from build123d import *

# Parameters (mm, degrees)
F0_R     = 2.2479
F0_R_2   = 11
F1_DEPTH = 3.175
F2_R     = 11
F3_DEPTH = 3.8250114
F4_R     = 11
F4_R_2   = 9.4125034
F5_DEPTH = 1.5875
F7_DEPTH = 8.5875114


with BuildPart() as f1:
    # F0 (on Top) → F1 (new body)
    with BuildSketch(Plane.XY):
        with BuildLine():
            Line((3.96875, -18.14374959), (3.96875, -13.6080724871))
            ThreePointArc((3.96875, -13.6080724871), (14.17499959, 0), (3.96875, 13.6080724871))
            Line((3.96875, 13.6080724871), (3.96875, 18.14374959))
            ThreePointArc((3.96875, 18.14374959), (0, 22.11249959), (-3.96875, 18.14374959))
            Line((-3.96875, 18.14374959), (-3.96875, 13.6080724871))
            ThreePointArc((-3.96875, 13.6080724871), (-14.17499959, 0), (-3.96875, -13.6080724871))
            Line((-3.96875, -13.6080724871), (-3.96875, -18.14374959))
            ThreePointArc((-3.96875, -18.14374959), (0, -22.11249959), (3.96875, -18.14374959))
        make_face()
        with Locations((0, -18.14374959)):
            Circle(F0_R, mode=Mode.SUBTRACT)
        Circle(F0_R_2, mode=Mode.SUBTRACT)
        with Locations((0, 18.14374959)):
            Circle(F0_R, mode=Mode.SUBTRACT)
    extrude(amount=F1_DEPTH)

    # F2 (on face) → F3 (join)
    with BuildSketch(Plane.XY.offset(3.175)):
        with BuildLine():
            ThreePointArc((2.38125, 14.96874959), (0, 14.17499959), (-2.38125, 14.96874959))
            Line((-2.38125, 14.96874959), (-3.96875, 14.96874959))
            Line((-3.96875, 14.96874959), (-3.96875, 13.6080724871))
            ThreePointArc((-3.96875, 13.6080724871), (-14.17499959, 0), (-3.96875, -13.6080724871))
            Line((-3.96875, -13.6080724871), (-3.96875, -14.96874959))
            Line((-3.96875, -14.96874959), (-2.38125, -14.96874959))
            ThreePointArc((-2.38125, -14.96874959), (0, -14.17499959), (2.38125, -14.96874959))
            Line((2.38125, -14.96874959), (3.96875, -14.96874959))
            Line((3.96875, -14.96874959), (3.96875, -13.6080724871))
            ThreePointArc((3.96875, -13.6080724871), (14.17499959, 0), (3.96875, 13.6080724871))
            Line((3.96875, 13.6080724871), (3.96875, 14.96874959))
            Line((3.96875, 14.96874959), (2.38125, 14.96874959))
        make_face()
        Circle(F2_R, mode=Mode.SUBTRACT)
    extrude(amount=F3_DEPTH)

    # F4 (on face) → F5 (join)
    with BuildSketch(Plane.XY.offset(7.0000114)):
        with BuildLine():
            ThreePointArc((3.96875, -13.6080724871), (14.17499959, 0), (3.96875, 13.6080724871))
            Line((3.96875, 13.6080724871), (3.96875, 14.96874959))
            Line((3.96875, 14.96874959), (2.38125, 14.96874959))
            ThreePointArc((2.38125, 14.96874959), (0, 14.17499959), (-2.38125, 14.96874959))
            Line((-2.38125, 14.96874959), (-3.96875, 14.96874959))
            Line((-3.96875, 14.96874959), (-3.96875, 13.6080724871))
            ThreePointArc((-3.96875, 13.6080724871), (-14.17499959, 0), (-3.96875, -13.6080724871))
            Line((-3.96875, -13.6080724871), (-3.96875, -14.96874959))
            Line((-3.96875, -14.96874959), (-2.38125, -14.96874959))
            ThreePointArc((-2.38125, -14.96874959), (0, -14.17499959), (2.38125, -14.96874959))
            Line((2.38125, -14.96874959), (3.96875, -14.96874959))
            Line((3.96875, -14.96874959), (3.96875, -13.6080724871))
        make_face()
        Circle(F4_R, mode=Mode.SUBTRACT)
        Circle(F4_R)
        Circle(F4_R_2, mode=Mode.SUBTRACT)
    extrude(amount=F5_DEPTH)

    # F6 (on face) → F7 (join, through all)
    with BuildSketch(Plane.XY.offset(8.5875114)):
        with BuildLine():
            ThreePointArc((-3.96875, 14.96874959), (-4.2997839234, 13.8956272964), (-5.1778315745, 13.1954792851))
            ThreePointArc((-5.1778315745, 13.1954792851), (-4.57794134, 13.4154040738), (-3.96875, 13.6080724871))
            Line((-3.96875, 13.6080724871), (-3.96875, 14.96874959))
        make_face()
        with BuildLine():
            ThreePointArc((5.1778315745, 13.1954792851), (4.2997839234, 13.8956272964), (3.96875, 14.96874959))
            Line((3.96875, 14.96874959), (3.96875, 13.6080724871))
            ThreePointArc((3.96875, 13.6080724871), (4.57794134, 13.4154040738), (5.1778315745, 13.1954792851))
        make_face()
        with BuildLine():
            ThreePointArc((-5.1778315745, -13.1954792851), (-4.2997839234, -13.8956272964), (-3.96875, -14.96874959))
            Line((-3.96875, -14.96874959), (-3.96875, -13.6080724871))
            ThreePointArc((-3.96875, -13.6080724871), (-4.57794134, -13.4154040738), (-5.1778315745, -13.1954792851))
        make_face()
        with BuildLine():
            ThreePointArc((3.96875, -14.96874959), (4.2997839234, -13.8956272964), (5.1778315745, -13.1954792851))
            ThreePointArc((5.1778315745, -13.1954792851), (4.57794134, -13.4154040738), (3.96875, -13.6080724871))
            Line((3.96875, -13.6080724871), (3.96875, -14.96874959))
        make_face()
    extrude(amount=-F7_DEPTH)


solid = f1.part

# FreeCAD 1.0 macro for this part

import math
import FreeCAD as App
import Part
import Sketcher

V = App.Vector
Q = App.Units.Quantity

doc = App.newDocument("Part")
body = doc.addObject("PartDesign::Body", "Body")

# Sketch on XY plane
sketch1 = body.newObject("Sketcher::SketchObject", "Sketch")
sketch1.AttachmentSupport = (doc.getObject("XY_Plane"), [""])
sketch1.MapMode = "FlatFace"
sketch1.addGeometry([
    Part.LineSegment(V(3.96875, -18.14375, 0), V(3.96875, -13.608072, 0)),  # 0
    Part.ArcOfCircle(Part.Circle(V(0, 0, 0), V(0, 0, 1), 14.175), math.radians(-73.740847), math.radians(73.740847)),  # 1
    Part.LineSegment(V(3.96875, 13.608072, 0), V(3.96875, 18.14375, 0)),  # 2
    Part.ArcOfCircle(Part.Circle(V(0, 18.14375, 0), V(0, 0, 1), 3.96875), math.radians(0), math.radians(180)),  # 3
    Part.LineSegment(V(-3.96875, 18.14375, 0), V(-3.96875, 13.608072, 0)),  # 4
    Part.ArcOfCircle(Part.Circle(V(0, 0, 0), V(0, 0, 1), 14.175), math.radians(106.259153), math.radians(253.740847)),  # 5
    Part.LineSegment(V(-3.96875, -13.608072, 0), V(-3.96875, -18.14375, 0)),  # 6
    Part.ArcOfCircle(Part.Circle(V(0, -18.14375, 0), V(0, 0, 1), 3.96875), math.radians(180), math.radians(360)),  # 7
    Part.Circle(V(0, -18.14375, 0), V(0, 0, 1), 2.2479),  # 8
    Part.Circle(V(0, 0, 0), V(0, 0, 1), 11),  # 9
    Part.Circle(V(0, 18.14375, 0), V(0, 0, 1), 2.2479),  # 10
], False)
sketch1.addConstraint([
    Sketcher.Constraint("Coincident", 0, 2, 1, 1),
    Sketcher.Constraint("Coincident", 1, 2, 2, 1),
    Sketcher.Constraint("Tangent", 2, 2, 3, 1),
    Sketcher.Constraint("Tangent", 3, 2, 4, 1),
    Sketcher.Constraint("Coincident", 4, 2, 5, 1),
    Sketcher.Constraint("Coincident", 5, 2, 6, 1),
    Sketcher.Constraint("Tangent", 6, 2, 7, 1),
    Sketcher.Constraint("Tangent", 7, 2, 0, 1),
    Sketcher.Constraint("Vertical", 0),
    Sketcher.Constraint("Vertical", 2),
    Sketcher.Constraint("Vertical", 4),
    Sketcher.Constraint("Vertical", 6),
    Sketcher.Constraint("Coincident", 1, 3, -1, 1),
    Sketcher.Constraint("Coincident", 5, 3, -1, 1),
    Sketcher.Constraint("Coincident", 9, 3, -1, 1),
    Sketcher.Constraint("Coincident", 8, 3, 7, 3),
    Sketcher.Constraint("Coincident", 10, 3, 3, 3),
    Sketcher.Constraint("Equal", 1, 5),
    Sketcher.Constraint("Equal", 3, 7),
    Sketcher.Constraint("Equal", 8, 10),
    Sketcher.Constraint("Symmetric", 3, 3, 7, 3, -1, 1),
    Sketcher.Constraint("PointOnObject", 3, 3, -2),
    Sketcher.Constraint("Diameter", 8, Q("0.177 in")),
    Sketcher.Constraint("Radius", 3, Q("0.15625 in")),
    Sketcher.Constraint("Diameter", 9, Q("22 mm")),
    Sketcher.Constraint("Radius", 1, Q("14.175 mm")),
    Sketcher.Constraint("DistanceY", 7, 3, 3, 3, Q("36.287499 mm")),
])
pad1 = body.newObject("PartDesign::Pad", "Pad")
pad1.Profile = sketch1
pad1.Length = Q("0.125 in")

# Sketch on XY plane
sketch2 = body.newObject("Sketcher::SketchObject", "Sketch001")
sketch2.AttachmentSupport = (doc.getObject("XY_Plane"), [""])
sketch2.MapMode = "FlatFace"
sketch2.AttachmentOffset = App.Placement(V(0, 0, 0.125 * 25.4), App.Rotation())
sketch2.addGeometry([
    Part.ArcOfCircle(Part.Circle(V(0, 18.14375, 0), V(0, 0, 1), 3.96875), math.radians(-126.869898), math.radians(-53.130102)),  # 0
    Part.LineSegment(V(-2.38125, 14.96875, 0), V(-3.96875, 14.96875, 0)),  # 1
    Part.LineSegment(V(-3.96875, 14.96875, 0), V(-3.96875, 13.608072, 0)),  # 2
    Part.ArcOfCircle(Part.Circle(V(0, 0, 0), V(0, 0, 1), 14.175), math.radians(106.259153), math.radians(253.740847)),  # 3
    Part.LineSegment(V(-3.96875, -13.608072, 0), V(-3.96875, -14.96875, 0)),  # 4
    Part.LineSegment(V(-3.96875, -14.96875, 0), V(-2.38125, -14.96875, 0)),  # 5
    Part.ArcOfCircle(Part.Circle(V(0, -18.14375, 0), V(0, 0, 1), 3.96875), math.radians(53.130102), math.radians(126.869898)),  # 6
    Part.LineSegment(V(2.38125, -14.96875, 0), V(3.96875, -14.96875, 0)),  # 7
    Part.LineSegment(V(3.96875, -14.96875, 0), V(3.96875, -13.608072, 0)),  # 8
    Part.ArcOfCircle(Part.Circle(V(0, 0, 0), V(0, 0, 1), 14.175), math.radians(-73.740847), math.radians(73.740847)),  # 9
    Part.LineSegment(V(3.96875, 13.608072, 0), V(3.96875, 14.96875, 0)),  # 10
    Part.LineSegment(V(3.96875, 14.96875, 0), V(2.38125, 14.96875, 0)),  # 11
    Part.Circle(V(0, 0, 0), V(0, 0, 1), 11),  # 12
], False)
sketch2.addConstraint([
    Sketcher.Constraint("Coincident", 0, 1, 1, 1),
    Sketcher.Constraint("Coincident", 1, 2, 2, 1),
    Sketcher.Constraint("Coincident", 2, 2, 3, 1),
    Sketcher.Constraint("Coincident", 3, 2, 4, 1),
    Sketcher.Constraint("Coincident", 4, 2, 5, 1),
    Sketcher.Constraint("Coincident", 5, 2, 6, 2),
    Sketcher.Constraint("Coincident", 6, 1, 7, 1),
    Sketcher.Constraint("Coincident", 7, 2, 8, 1),
    Sketcher.Constraint("Coincident", 8, 2, 9, 1),
    Sketcher.Constraint("Coincident", 9, 2, 10, 1),
    Sketcher.Constraint("Coincident", 10, 2, 11, 1),
    Sketcher.Constraint("Coincident", 11, 2, 0, 2),
    Sketcher.Constraint("Horizontal", 1),
    Sketcher.Constraint("Vertical", 2),
    Sketcher.Constraint("Vertical", 4),
    Sketcher.Constraint("Horizontal", 5),
    Sketcher.Constraint("Horizontal", 7),
    Sketcher.Constraint("Vertical", 8),
    Sketcher.Constraint("Vertical", 10),
    Sketcher.Constraint("Horizontal", 11),
    Sketcher.Constraint("Coincident", 3, 3, -1, 1),
    Sketcher.Constraint("Coincident", 9, 3, -1, 1),
    Sketcher.Constraint("Coincident", 12, 3, -1, 1),
    Sketcher.Constraint("Equal", 0, 6),
    Sketcher.Constraint("Equal", 3, 9),
    Sketcher.Constraint("Symmetric", 0, 3, 6, 3, -1, 1),
    Sketcher.Constraint("Symmetric", 1, 2, 7, 2, -1, 1),
    Sketcher.Constraint("Symmetric", 4, 2, 10, 2, -1, 1),
    Sketcher.Constraint("Symmetric", 5, 2, 6, 1, -2),
    Sketcher.Constraint("Horizontal", 3, 2, 8, 2),
    Sketcher.Constraint("Radius", 0, Q("0.15625 in")),
    Sketcher.Constraint("Diameter", 12, Q("22 mm")),
    Sketcher.Constraint("DistanceX", 1, 2, 1, 1, Q("0.0625 in")),
    Sketcher.Constraint("Radius", 3, Q("14.175 mm")),
    Sketcher.Constraint("DistanceX", 4, 2, 6, 1, Q("0.25 in")),
    Sketcher.Constraint("DistanceY", 6, 3, 0, 3, Q("36.287499 mm")),
])
pad2 = body.newObject("PartDesign::Pad", "Pad001")
pad2.Profile = sketch2
pad2.Length = 3.825011

# Sketch on XY plane
sketch3 = body.newObject("Sketcher::SketchObject", "Sketch002")
sketch3.AttachmentSupport = (doc.getObject("XY_Plane"), [""])
sketch3.MapMode = "FlatFace"
sketch3.AttachmentOffset = App.Placement(V(0, 0, 7.000011), App.Rotation())
sketch3.addGeometry([
    Part.ArcOfCircle(Part.Circle(V(0, 0, 0), V(0, 0, 1), 14.175), math.radians(-73.740847), math.radians(73.740847)),  # 0
    Part.LineSegment(V(3.96875, 13.608072, 0), V(3.96875, 14.96875, 0)),  # 1
    Part.LineSegment(V(3.96875, 14.96875, 0), V(2.38125, 14.96875, 0)),  # 2
    Part.ArcOfCircle(Part.Circle(V(0, 18.14375, 0), V(0, 0, 1), 3.96875), math.radians(-126.869898), math.radians(-53.130102)),  # 3
    Part.LineSegment(V(-2.38125, 14.96875, 0), V(-3.96875, 14.96875, 0)),  # 4
    Part.LineSegment(V(-3.96875, 14.96875, 0), V(-3.96875, 13.608072, 0)),  # 5
    Part.ArcOfCircle(Part.Circle(V(0, 0, 0), V(0, 0, 1), 14.175), math.radians(106.259153), math.radians(253.740847)),  # 6
    Part.LineSegment(V(-3.96875, -13.608072, 0), V(-3.96875, -14.96875, 0)),  # 7
    Part.LineSegment(V(-3.96875, -14.96875, 0), V(-2.38125, -14.96875, 0)),  # 8
    Part.ArcOfCircle(Part.Circle(V(0, -18.14375, 0), V(0, 0, 1), 3.96875), math.radians(53.130102), math.radians(126.869898)),  # 9
    Part.LineSegment(V(2.38125, -14.96875, 0), V(3.96875, -14.96875, 0)),  # 10
    Part.LineSegment(V(3.96875, -14.96875, 0), V(3.96875, -13.608072, 0)),  # 11
    Part.Circle(V(0, 0, 0), V(0, 0, 1), 9.412503),  # 12
], False)
sketch3.addConstraint([
    Sketcher.Constraint("Coincident", 0, 2, 1, 1),
    Sketcher.Constraint("Coincident", 1, 2, 2, 1),
    Sketcher.Constraint("Coincident", 2, 2, 3, 2),
    Sketcher.Constraint("Coincident", 3, 1, 4, 1),
    Sketcher.Constraint("Coincident", 4, 2, 5, 1),
    Sketcher.Constraint("Coincident", 5, 2, 6, 1),
    Sketcher.Constraint("Coincident", 6, 2, 7, 1),
    Sketcher.Constraint("Coincident", 7, 2, 8, 1),
    Sketcher.Constraint("Coincident", 8, 2, 9, 2),
    Sketcher.Constraint("Coincident", 9, 1, 10, 1),
    Sketcher.Constraint("Coincident", 10, 2, 11, 1),
    Sketcher.Constraint("Coincident", 11, 2, 0, 1),
    Sketcher.Constraint("Vertical", 1),
    Sketcher.Constraint("Horizontal", 2),
    Sketcher.Constraint("Horizontal", 4),
    Sketcher.Constraint("Vertical", 5),
    Sketcher.Constraint("Vertical", 7),
    Sketcher.Constraint("Horizontal", 8),
    Sketcher.Constraint("Horizontal", 10),
    Sketcher.Constraint("Vertical", 11),
    Sketcher.Constraint("Coincident", 0, 3, -1, 1),
    Sketcher.Constraint("Coincident", 6, 3, -1, 1),
    Sketcher.Constraint("Coincident", 12, 3, -1, 1),
    Sketcher.Constraint("Equal", 0, 6),
    Sketcher.Constraint("Equal", 3, 9),
    Sketcher.Constraint("Symmetric", 3, 3, 9, 3, -1, 1),
    Sketcher.Constraint("Symmetric", 1, 2, 7, 2, -1, 1),
    Sketcher.Constraint("Symmetric", 4, 2, 10, 2, -1, 1),
    Sketcher.Constraint("Symmetric", 2, 2, 3, 1, -2),
    Sketcher.Constraint("Horizontal", 0, 2, 5, 2),
    Sketcher.Constraint("Radius", 3, Q("0.15625 in")),
    Sketcher.Constraint("DistanceX", 2, 2, 2, 1, Q("0.0625 in")),
    Sketcher.Constraint("Radius", 0, Q("14.175 mm")),
    Sketcher.Constraint("DistanceX", 3, 1, 1, 2, Q("0.25 in")),
    Sketcher.Constraint("Diameter", 12, Q("18.825007 mm")),
    Sketcher.Constraint("DistanceY", 9, 3, 3, 3, Q("36.287499 mm")),
])
pad3 = body.newObject("PartDesign::Pad", "Pad002")
pad3.Profile = sketch3
pad3.Length = Q("0.0625 in")

# Sketch on XY plane
sketch4 = body.newObject("Sketcher::SketchObject", "Sketch003")
sketch4.AttachmentSupport = (doc.getObject("XY_Plane"), [""])
sketch4.MapMode = "FlatFace"
sketch4.AttachmentOffset = App.Placement(V(0, 0, 8.587511), App.Rotation())
sketch4.addGeometry([
    Part.ArcOfCircle(Part.Circle(V(-5.873653, 14.96875, 0), V(0, 0, 1), 1.904903), math.radians(-68.575238), math.radians(0)),  # 0
    Part.ArcOfCircle(Part.Circle(V(0, 0, 0), V(0, 0, 1), 14.175), math.radians(106.259153), math.radians(111.424762)),  # 1
    Part.LineSegment(V(-3.96875, 13.608072, 0), V(-3.96875, 14.96875, 0)),  # 2
    Part.ArcOfCircle(Part.Circle(V(5.873653, 14.96875, 0), V(0, 0, 1), 1.904903), math.radians(180), math.radians(248.575238)),  # 3
    Part.LineSegment(V(3.96875, 14.96875, 0), V(3.96875, 13.608072, 0)),  # 4
    Part.ArcOfCircle(Part.Circle(V(0, 0, 0), V(0, 0, 1), 14.175), math.radians(68.575238), math.radians(73.740847)),  # 5
    Part.ArcOfCircle(Part.Circle(V(-5.873653, -14.96875, 0), V(0, 0, 1), 1.904903), math.radians(0), math.radians(68.575238)),  # 6
    Part.LineSegment(V(-3.96875, -14.96875, 0), V(-3.96875, -13.608072, 0)),  # 7
    Part.ArcOfCircle(Part.Circle(V(0, 0, 0), V(0, 0, 1), 14.175), math.radians(-111.424762), math.radians(-106.259153)),  # 8
    Part.ArcOfCircle(Part.Circle(V(5.873653, -14.96875, 0), V(0, 0, 1), 1.904903), math.radians(111.424762), math.radians(180)),  # 9
    Part.ArcOfCircle(Part.Circle(V(0, 0, 0), V(0, 0, 1), 14.175), math.radians(-73.740847), math.radians(-68.575238)),  # 10
    Part.LineSegment(V(3.96875, -13.608072, 0), V(3.96875, -14.96875, 0)),  # 11
], False)
sketch4.addConstraint([
    Sketcher.Constraint("Tangent", 0, 1, 1, 2),
    Sketcher.Constraint("Coincident", 1, 1, 2, 1),
    Sketcher.Constraint("Tangent", 2, 2, 0, 2),
    Sketcher.Constraint("Tangent", 3, 1, 4, 1),
    Sketcher.Constraint("Coincident", 4, 2, 5, 2),
    Sketcher.Constraint("Tangent", 5, 1, 3, 2),
    Sketcher.Constraint("Tangent", 6, 1, 7, 1),
    Sketcher.Constraint("Coincident", 7, 2, 8, 2),
    Sketcher.Constraint("Tangent", 8, 1, 6, 2),
    Sketcher.Constraint("Tangent", 9, 1, 10, 2),
    Sketcher.Constraint("Coincident", 10, 1, 11, 1),
    Sketcher.Constraint("Tangent", 11, 2, 9, 2),
    Sketcher.Constraint("Vertical", 2),
    Sketcher.Constraint("Vertical", 4),
    Sketcher.Constraint("Vertical", 7),
    Sketcher.Constraint("Vertical", 11),
    Sketcher.Constraint("Coincident", 1, 3, -1, 1),
    Sketcher.Constraint("Coincident", 5, 3, -1, 1),
    Sketcher.Constraint("Coincident", 8, 3, -1, 1),
    Sketcher.Constraint("Coincident", 10, 3, -1, 1),
    Sketcher.Constraint("Equal", 0, 3),
    Sketcher.Constraint("Equal", 1, 5),
    Sketcher.Constraint("Equal", 3, 6),
    Sketcher.Constraint("Equal", 5, 8),
    Sketcher.Constraint("Equal", 6, 9),
    Sketcher.Constraint("Equal", 8, 10),
    Sketcher.Constraint("Horizontal", 0, 3, 3, 3),
    Sketcher.Constraint("Horizontal", 6, 3, 9, 3),
    Sketcher.Constraint("Vertical", 0, 3, 6, 3),
    Sketcher.Constraint("Radius", 1, Q("14.175 mm")),
    Sketcher.Constraint("DistanceX", 1, 1, -1, 1, Q("0.15625 in")),
    Sketcher.Constraint("Radius", 0, Q("1.904903 mm")),
])
pad4 = body.newObject("PartDesign::Pad", "Pad003")
pad4.Profile = sketch4
pad4.Length = 8.587511
pad4.Reversed = True

doc.recompute()
